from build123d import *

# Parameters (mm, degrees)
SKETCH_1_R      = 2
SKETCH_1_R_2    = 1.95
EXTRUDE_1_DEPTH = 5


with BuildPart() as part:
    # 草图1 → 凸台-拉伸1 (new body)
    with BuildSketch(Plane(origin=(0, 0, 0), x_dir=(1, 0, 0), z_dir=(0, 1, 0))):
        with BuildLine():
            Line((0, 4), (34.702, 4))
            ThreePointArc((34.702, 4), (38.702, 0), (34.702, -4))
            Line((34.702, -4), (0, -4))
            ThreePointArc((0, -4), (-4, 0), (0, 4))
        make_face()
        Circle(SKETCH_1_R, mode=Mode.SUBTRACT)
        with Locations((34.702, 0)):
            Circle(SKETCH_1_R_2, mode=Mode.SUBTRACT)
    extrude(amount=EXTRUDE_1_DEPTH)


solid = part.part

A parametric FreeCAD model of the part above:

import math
import FreeCAD as App
import Part
import Sketcher
from FreeCAD import Vector
Q = App.Units.Quantity

doc = App.newDocument("Part")
body = doc.addObject("PartDesign::Body", "Body")

sketch1 = body.newObject("Sketcher::SketchObject", "Sketch")
sketch1.AttachmentSupport = (doc.getObject("XZ_Plane"), [""])
sketch1.MapMode = "FlatFace"
sketch1.addGeometry(Part.LineSegment(Vector(34.7, -4, 0), Vector(0, -4, 0)), False)
sketch1.addGeometry(Part.ArcOfCircle(Part.Circle(Vector(0, 0, 0), Vector(0, 0, 1), 4), math.radians(90), math.radians(270)), False)
sketch1.addGeometry(Part.LineSegment(Vector(0, 4, 0), Vector(34.7, 4, 0)), False)
sketch1.addGeometry(Part.ArcOfCircle(Part.Circle(Vector(34.7, 0, 0), Vector(0, 0, 1), 4), math.radians(-90), math.radians(90)), False)
sketch1.addGeometry(Part.Circle(Vector(34.7, 0, 0), Vector(0, 0, 1), 1.9), False)
sketch1.addGeometry(Part.Circle(Vector(0, 0, 0), Vector(0, 0, 1), 2), False)
sketch1.addConstraint(Sketcher.Constraint("Tangent", 0, 2, 1, 2))
sketch1.addConstraint(Sketcher.Constraint("Tangent", 1, 1, 2, 1))
sketch1.addConstraint(Sketcher.Constraint("Tangent", 2, 2, 3, 2))
sketch1.addConstraint(Sketcher.Constraint("Tangent", 3, 1, 0, 1))
sketch1.addConstraint(Sketcher.Constraint("Horizontal", 0))
sketch1.addConstraint(Sketcher.Constraint("Horizontal", 2))
sketch1.addConstraint(Sketcher.Constraint("Coincident", 1, 3, -1, 1))
sketch1.addConstraint(Sketcher.Constraint("Coincident", 5, 3, -1, 1))
sketch1.addConstraint(Sketcher.Constraint("Coincident", 4, 3, 3, 3))
sketch1.addConstraint(Sketcher.Constraint("Diameter", 5, Q("4 mm")))
sketch1.addConstraint(Sketcher.Constraint("Radius", 1, Q("4 mm")))
sketch1.addConstraint(Sketcher.Constraint("Diameter", 4, Q("3.9 mm")))
sketch1.addConstraint(Sketcher.Constraint("DistanceX", 0, 2, 0, 1, Q("34.702 mm")))
pad1 = body.newObject("PartDesign::Pad", "Pad")
pad1.Profile = sketch1
pad1.Length = 5
pad1.Reversed = True

doc.recompute()
